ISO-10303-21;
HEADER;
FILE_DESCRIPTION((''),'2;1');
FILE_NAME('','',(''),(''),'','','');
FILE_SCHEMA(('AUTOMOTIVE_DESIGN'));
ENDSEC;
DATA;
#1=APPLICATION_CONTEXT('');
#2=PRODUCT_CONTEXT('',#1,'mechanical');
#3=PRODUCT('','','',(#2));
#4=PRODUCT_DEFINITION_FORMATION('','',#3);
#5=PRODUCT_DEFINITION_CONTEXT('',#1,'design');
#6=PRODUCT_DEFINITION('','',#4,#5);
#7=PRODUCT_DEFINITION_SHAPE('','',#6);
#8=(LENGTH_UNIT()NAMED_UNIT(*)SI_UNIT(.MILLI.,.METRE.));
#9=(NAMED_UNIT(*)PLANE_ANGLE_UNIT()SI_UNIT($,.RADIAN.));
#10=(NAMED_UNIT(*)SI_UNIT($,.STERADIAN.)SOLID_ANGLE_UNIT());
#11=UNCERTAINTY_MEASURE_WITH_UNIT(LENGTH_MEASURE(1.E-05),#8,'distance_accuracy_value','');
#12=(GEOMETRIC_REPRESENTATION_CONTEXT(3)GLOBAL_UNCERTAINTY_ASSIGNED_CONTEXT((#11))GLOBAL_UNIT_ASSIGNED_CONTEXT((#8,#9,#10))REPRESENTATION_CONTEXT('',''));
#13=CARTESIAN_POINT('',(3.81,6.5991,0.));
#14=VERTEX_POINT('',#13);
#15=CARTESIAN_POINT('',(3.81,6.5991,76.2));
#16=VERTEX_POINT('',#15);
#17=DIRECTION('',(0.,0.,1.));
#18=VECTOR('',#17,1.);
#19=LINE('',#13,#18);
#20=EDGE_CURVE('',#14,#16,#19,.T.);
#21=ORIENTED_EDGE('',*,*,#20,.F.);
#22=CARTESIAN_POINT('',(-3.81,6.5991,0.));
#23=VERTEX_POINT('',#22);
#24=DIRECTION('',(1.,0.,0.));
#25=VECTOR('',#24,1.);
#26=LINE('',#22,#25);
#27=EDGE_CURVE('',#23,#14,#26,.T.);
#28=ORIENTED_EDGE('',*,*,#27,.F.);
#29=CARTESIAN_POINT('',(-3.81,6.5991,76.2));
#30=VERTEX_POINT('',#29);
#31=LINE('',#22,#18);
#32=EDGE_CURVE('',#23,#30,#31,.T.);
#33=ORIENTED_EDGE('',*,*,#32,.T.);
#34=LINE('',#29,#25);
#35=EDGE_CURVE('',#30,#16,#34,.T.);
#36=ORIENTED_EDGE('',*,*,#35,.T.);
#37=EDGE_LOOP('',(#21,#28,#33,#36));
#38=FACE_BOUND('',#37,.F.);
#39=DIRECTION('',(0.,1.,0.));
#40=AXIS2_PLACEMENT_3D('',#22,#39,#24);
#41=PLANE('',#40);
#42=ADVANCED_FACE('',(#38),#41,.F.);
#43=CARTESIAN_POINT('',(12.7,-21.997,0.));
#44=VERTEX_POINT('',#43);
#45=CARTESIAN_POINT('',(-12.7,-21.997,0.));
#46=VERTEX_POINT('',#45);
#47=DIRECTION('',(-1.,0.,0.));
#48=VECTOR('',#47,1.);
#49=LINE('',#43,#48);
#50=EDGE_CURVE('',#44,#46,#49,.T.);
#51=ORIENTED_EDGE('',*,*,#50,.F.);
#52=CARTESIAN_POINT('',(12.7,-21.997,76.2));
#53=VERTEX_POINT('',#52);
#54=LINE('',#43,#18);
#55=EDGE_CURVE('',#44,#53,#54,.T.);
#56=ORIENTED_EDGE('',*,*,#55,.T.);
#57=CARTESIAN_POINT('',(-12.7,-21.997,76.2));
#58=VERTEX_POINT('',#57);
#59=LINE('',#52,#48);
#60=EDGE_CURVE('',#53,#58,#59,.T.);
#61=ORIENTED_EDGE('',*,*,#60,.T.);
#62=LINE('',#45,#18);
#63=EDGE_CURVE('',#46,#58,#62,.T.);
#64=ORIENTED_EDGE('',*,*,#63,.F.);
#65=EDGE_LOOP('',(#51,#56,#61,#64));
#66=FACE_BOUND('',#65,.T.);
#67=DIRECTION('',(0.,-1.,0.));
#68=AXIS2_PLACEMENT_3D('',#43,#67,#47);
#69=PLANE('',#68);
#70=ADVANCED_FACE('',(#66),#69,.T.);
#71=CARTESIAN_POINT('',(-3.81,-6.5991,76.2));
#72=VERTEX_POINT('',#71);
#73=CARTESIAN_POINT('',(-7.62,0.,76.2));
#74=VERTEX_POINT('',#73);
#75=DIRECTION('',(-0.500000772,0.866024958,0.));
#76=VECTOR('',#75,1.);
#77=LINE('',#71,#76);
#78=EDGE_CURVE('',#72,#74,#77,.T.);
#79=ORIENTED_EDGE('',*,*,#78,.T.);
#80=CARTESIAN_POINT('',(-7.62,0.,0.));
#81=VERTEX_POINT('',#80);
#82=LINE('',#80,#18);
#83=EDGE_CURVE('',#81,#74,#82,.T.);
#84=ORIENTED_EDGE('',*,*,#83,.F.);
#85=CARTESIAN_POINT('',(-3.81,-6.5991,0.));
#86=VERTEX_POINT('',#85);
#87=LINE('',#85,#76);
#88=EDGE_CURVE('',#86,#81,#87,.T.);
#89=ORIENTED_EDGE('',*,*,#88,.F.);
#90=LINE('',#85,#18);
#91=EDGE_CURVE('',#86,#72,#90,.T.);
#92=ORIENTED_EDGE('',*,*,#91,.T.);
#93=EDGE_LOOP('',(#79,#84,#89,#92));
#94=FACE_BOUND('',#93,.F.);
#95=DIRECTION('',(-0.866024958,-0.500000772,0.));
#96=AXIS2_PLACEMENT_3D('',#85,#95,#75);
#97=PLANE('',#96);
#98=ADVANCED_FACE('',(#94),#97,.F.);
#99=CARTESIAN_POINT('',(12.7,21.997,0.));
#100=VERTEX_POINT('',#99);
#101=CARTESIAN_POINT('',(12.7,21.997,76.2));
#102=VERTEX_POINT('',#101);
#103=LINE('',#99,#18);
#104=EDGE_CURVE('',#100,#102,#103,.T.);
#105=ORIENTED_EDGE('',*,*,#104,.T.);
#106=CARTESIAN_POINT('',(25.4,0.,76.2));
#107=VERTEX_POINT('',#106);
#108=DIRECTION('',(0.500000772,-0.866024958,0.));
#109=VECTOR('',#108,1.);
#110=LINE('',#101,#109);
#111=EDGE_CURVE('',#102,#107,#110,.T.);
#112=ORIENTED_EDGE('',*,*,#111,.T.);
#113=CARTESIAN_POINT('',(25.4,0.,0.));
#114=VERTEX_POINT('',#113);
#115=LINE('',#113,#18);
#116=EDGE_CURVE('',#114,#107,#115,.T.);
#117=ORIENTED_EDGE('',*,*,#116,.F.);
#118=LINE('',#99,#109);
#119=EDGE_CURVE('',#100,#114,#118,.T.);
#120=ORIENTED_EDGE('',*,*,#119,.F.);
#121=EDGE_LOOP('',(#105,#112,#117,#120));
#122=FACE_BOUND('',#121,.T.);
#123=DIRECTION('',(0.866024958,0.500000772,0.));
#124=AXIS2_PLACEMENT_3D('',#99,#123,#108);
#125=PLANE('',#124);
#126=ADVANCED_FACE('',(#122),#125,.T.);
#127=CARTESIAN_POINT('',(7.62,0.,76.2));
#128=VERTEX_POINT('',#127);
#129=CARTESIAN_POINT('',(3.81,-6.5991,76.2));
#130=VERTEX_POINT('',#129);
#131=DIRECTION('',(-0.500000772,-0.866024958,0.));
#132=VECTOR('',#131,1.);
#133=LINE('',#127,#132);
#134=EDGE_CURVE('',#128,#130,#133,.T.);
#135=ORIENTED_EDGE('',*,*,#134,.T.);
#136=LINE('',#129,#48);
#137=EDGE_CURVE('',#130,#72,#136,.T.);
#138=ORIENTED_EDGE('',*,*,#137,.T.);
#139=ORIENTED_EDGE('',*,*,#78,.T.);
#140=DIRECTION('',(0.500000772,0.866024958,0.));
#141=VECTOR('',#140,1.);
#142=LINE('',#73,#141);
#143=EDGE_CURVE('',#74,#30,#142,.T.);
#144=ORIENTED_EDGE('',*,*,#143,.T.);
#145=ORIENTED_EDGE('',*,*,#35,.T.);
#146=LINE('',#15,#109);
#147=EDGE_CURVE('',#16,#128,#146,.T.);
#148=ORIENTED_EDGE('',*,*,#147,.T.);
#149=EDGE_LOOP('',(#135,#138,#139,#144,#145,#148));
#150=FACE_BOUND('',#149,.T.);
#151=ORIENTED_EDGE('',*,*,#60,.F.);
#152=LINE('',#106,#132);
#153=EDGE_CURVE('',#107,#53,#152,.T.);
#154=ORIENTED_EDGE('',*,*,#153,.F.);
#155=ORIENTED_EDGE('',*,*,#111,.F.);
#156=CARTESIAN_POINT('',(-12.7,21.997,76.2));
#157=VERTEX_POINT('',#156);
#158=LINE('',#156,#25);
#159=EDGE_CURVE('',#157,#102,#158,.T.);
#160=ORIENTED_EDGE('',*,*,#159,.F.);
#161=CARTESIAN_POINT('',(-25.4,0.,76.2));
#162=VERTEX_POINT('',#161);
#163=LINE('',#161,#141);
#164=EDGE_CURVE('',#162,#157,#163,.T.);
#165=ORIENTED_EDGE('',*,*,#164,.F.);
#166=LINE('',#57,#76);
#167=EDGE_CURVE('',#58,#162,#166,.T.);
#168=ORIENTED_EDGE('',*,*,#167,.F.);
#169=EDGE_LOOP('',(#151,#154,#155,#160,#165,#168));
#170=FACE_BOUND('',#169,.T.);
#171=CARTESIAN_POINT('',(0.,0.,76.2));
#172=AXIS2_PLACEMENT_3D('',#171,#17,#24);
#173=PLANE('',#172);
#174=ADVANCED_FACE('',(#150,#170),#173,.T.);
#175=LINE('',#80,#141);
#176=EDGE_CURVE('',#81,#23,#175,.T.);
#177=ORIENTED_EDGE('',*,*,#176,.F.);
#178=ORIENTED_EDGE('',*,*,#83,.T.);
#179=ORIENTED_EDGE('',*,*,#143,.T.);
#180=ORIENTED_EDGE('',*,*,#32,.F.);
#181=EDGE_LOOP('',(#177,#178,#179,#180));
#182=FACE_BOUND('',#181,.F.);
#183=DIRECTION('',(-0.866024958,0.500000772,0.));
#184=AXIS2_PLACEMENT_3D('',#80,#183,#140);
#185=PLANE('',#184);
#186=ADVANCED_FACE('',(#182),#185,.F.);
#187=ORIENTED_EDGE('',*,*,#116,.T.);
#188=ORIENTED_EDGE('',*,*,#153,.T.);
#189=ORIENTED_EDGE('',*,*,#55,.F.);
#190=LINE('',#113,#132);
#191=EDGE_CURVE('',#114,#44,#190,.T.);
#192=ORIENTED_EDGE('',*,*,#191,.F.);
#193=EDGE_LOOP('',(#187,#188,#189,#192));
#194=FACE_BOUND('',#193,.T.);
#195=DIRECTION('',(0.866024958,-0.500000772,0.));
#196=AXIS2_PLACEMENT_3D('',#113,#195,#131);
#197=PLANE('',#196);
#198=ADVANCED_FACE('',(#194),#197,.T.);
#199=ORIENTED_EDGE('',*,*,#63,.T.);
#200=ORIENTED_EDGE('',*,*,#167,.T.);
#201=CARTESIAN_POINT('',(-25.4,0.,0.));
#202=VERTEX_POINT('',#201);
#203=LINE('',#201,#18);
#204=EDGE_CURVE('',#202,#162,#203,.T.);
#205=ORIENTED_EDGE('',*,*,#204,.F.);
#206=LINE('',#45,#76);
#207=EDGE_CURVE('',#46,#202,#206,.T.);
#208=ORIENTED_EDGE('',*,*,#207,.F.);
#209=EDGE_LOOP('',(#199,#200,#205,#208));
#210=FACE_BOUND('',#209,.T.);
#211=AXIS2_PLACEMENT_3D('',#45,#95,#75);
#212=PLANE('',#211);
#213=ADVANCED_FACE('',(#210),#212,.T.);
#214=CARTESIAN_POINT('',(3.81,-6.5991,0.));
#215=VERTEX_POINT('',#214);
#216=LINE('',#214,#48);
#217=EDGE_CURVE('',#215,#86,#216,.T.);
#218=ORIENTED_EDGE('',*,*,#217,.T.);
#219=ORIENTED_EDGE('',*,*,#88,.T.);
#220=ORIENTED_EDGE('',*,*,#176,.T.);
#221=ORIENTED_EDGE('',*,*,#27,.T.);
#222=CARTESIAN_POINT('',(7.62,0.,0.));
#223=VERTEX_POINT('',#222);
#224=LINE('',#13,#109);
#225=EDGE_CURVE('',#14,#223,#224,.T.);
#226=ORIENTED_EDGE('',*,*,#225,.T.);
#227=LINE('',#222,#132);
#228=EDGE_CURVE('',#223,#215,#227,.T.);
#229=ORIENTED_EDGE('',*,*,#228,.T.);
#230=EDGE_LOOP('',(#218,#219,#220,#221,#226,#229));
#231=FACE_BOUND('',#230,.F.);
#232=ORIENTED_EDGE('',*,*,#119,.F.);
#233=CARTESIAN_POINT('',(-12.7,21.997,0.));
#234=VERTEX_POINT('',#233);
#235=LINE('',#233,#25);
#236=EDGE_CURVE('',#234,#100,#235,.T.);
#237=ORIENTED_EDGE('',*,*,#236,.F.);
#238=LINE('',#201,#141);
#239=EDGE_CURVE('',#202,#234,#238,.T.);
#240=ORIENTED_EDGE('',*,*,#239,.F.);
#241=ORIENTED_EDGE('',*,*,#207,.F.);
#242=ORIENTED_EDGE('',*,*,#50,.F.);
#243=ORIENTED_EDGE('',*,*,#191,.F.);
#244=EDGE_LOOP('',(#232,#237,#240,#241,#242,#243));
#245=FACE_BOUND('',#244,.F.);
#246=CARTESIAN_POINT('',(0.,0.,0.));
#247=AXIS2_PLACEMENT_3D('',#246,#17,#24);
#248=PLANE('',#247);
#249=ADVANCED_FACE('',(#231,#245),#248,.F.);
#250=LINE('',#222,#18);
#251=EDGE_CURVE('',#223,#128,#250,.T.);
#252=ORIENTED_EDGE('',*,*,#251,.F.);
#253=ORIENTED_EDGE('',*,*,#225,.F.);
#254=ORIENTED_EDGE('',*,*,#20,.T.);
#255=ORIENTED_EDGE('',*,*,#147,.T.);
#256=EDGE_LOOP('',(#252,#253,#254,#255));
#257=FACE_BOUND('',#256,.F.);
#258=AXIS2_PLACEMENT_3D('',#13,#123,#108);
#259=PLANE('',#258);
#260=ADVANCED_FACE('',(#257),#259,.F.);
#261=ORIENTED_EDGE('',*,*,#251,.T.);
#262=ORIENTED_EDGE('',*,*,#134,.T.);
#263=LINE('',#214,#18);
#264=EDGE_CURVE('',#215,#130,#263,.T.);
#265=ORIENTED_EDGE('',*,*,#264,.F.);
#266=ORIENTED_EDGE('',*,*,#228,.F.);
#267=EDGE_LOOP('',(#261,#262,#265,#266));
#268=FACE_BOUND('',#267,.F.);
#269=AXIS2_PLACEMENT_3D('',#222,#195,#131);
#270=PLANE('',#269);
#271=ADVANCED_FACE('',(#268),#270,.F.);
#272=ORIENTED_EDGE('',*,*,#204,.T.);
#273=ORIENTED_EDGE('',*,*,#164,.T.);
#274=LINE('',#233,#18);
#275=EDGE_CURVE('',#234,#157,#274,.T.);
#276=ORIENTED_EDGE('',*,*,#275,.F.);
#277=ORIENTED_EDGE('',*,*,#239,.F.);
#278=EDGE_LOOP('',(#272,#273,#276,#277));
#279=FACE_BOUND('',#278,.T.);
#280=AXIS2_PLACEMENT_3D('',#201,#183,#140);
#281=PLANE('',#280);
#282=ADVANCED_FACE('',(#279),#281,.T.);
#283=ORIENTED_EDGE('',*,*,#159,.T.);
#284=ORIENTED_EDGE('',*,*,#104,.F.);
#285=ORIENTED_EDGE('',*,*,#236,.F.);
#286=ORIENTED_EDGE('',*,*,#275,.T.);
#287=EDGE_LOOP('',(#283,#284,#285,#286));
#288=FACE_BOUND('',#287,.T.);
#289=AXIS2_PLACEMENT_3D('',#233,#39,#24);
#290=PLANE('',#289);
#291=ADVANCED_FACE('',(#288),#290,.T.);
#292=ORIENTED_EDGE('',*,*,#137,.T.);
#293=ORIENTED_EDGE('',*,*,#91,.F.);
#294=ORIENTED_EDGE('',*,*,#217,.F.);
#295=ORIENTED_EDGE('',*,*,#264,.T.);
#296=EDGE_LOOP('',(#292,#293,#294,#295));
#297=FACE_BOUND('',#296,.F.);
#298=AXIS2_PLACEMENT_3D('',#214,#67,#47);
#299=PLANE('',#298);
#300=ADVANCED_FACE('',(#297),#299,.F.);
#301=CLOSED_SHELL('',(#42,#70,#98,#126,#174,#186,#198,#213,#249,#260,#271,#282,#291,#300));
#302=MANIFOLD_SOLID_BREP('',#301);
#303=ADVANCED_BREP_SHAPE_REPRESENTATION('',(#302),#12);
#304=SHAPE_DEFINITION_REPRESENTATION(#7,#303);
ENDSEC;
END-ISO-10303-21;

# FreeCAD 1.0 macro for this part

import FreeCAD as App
import Part
import Sketcher
Q = App.Units.Quantity


def add_polygon(sketch, points):
    """Adds a closed chain of lines whose ends are joined by coincident constraints."""
    first, n = sketch.GeometryCount, len(points)
    for a, b in zip(points, points[1:] + points[:1]):
        sketch.addGeometry(Part.LineSegment(App.Vector(*a, 0), App.Vector(*b, 0)), False)
    for i in range(n):
        sketch.addConstraint(Sketcher.Constraint("Coincident", first + i, 2, first + (i + 1) % n, 1))

doc = App.newDocument("Part")
params = doc.addObject("Spreadsheet::Sheet", "Params")
for row, (alias, value) in enumerate([
    ("sketch1_width", "1 in"),
    ("sketch1_length", "1 in"),
    ("sketch1_width2", "0.3 in"),
    ("sketch1_length2", "0.3 in"),
    ("pad1_length", "3 in"),
], start=1):
    params.set(f"A{row}", alias)
    params.set(f"B{row}", "=" + value)
    params.setAlias(f"B{row}", alias)

body = doc.addObject("PartDesign::Body", "Body")

# Sketch on XY plane
sketch1 = body.newObject("Sketcher::SketchObject", "Sketch")
sketch1.AttachmentSupport = (doc.getObject("XY_Plane"), [""])
sketch1.MapMode = "FlatFace"
add_polygon(sketch1, [(13, -22), (25, 0), (13, 22), (-13, 22), (-25, 0), (-13, -22)])  # lines 0-5
add_polygon(sketch1, [(4, 7), (8, 0), (4, -7), (-4, -7), (-8, 0), (-4, 7)])  # lines 6-11
sketch1.addConstraint(Sketcher.Constraint("Horizontal", 2))
sketch1.addConstraint(Sketcher.Constraint("Horizontal", 5))
sketch1.addConstraint(Sketcher.Constraint("Horizontal", 8))
sketch1.addConstraint(Sketcher.Constraint("Horizontal", 11))
sketch1.addConstraint(Sketcher.Constraint("Symmetric", 0, 2, 3, 2, -1, 1))
sketch1.addConstraint(Sketcher.Constraint("Symmetric", 1, 2, 4, 2, -1, 1))
sketch1.addConstraint(Sketcher.Constraint("Symmetric", 6, 2, 9, 2, -1, 1))
sketch1.addConstraint(Sketcher.Constraint("Symmetric", 7, 2, 10, 2, -1, 1))
sketch1.addConstraint(Sketcher.Constraint("PointOnObject", 0, 2, -1))
sketch1.addConstraint(Sketcher.Constraint("PointOnObject", 6, 2, -1))
sketch1.addConstraint(Sketcher.Constraint("Parallel", 0, 3))
sketch1.addConstraint(Sketcher.Constraint("Parallel", 4, 6))
sketch1.addConstraint(Sketcher.Constraint("Parallel", 3, 7))
sketch1.addConstraint(Sketcher.Constraint("Parallel", 6, 9))
sketch1.addConstraint(Sketcher.Constraint("Vertical", 2, 2, 4, 2))
sketch1.addConstraint(Sketcher.Constraint("DistanceX", 2, 2, 2, 1, Q("1 in")))
sketch1.addConstraint(Sketcher.Constraint("Distance", 0, Q("1 in")))
sketch1.addConstraint(Sketcher.Constraint("DistanceX", 8, 2, 8, 1, Q("0.3 in")))
sketch1.addConstraint(Sketcher.Constraint("DistanceX", -1, 1, 0, 2, Q("1 in")))
sketch1.addConstraint(Sketcher.Constraint("Distance", 6, Q("0.3 in")))
sketch1.setExpression("Constraints[27]", "Params.sketch1_width")
sketch1.setExpression("Constraints[28]", "Params.sketch1_length")
sketch1.setExpression("Constraints[29]", "Params.sketch1_width2")
sketch1.setExpression("Constraints[31]", "Params.sketch1_length2")
pad1 = body.newObject("PartDesign::Pad", "Pad")
pad1.Profile = sketch1
pad1.setExpression("Length", "Params.pad1_length")

doc.recompute()
